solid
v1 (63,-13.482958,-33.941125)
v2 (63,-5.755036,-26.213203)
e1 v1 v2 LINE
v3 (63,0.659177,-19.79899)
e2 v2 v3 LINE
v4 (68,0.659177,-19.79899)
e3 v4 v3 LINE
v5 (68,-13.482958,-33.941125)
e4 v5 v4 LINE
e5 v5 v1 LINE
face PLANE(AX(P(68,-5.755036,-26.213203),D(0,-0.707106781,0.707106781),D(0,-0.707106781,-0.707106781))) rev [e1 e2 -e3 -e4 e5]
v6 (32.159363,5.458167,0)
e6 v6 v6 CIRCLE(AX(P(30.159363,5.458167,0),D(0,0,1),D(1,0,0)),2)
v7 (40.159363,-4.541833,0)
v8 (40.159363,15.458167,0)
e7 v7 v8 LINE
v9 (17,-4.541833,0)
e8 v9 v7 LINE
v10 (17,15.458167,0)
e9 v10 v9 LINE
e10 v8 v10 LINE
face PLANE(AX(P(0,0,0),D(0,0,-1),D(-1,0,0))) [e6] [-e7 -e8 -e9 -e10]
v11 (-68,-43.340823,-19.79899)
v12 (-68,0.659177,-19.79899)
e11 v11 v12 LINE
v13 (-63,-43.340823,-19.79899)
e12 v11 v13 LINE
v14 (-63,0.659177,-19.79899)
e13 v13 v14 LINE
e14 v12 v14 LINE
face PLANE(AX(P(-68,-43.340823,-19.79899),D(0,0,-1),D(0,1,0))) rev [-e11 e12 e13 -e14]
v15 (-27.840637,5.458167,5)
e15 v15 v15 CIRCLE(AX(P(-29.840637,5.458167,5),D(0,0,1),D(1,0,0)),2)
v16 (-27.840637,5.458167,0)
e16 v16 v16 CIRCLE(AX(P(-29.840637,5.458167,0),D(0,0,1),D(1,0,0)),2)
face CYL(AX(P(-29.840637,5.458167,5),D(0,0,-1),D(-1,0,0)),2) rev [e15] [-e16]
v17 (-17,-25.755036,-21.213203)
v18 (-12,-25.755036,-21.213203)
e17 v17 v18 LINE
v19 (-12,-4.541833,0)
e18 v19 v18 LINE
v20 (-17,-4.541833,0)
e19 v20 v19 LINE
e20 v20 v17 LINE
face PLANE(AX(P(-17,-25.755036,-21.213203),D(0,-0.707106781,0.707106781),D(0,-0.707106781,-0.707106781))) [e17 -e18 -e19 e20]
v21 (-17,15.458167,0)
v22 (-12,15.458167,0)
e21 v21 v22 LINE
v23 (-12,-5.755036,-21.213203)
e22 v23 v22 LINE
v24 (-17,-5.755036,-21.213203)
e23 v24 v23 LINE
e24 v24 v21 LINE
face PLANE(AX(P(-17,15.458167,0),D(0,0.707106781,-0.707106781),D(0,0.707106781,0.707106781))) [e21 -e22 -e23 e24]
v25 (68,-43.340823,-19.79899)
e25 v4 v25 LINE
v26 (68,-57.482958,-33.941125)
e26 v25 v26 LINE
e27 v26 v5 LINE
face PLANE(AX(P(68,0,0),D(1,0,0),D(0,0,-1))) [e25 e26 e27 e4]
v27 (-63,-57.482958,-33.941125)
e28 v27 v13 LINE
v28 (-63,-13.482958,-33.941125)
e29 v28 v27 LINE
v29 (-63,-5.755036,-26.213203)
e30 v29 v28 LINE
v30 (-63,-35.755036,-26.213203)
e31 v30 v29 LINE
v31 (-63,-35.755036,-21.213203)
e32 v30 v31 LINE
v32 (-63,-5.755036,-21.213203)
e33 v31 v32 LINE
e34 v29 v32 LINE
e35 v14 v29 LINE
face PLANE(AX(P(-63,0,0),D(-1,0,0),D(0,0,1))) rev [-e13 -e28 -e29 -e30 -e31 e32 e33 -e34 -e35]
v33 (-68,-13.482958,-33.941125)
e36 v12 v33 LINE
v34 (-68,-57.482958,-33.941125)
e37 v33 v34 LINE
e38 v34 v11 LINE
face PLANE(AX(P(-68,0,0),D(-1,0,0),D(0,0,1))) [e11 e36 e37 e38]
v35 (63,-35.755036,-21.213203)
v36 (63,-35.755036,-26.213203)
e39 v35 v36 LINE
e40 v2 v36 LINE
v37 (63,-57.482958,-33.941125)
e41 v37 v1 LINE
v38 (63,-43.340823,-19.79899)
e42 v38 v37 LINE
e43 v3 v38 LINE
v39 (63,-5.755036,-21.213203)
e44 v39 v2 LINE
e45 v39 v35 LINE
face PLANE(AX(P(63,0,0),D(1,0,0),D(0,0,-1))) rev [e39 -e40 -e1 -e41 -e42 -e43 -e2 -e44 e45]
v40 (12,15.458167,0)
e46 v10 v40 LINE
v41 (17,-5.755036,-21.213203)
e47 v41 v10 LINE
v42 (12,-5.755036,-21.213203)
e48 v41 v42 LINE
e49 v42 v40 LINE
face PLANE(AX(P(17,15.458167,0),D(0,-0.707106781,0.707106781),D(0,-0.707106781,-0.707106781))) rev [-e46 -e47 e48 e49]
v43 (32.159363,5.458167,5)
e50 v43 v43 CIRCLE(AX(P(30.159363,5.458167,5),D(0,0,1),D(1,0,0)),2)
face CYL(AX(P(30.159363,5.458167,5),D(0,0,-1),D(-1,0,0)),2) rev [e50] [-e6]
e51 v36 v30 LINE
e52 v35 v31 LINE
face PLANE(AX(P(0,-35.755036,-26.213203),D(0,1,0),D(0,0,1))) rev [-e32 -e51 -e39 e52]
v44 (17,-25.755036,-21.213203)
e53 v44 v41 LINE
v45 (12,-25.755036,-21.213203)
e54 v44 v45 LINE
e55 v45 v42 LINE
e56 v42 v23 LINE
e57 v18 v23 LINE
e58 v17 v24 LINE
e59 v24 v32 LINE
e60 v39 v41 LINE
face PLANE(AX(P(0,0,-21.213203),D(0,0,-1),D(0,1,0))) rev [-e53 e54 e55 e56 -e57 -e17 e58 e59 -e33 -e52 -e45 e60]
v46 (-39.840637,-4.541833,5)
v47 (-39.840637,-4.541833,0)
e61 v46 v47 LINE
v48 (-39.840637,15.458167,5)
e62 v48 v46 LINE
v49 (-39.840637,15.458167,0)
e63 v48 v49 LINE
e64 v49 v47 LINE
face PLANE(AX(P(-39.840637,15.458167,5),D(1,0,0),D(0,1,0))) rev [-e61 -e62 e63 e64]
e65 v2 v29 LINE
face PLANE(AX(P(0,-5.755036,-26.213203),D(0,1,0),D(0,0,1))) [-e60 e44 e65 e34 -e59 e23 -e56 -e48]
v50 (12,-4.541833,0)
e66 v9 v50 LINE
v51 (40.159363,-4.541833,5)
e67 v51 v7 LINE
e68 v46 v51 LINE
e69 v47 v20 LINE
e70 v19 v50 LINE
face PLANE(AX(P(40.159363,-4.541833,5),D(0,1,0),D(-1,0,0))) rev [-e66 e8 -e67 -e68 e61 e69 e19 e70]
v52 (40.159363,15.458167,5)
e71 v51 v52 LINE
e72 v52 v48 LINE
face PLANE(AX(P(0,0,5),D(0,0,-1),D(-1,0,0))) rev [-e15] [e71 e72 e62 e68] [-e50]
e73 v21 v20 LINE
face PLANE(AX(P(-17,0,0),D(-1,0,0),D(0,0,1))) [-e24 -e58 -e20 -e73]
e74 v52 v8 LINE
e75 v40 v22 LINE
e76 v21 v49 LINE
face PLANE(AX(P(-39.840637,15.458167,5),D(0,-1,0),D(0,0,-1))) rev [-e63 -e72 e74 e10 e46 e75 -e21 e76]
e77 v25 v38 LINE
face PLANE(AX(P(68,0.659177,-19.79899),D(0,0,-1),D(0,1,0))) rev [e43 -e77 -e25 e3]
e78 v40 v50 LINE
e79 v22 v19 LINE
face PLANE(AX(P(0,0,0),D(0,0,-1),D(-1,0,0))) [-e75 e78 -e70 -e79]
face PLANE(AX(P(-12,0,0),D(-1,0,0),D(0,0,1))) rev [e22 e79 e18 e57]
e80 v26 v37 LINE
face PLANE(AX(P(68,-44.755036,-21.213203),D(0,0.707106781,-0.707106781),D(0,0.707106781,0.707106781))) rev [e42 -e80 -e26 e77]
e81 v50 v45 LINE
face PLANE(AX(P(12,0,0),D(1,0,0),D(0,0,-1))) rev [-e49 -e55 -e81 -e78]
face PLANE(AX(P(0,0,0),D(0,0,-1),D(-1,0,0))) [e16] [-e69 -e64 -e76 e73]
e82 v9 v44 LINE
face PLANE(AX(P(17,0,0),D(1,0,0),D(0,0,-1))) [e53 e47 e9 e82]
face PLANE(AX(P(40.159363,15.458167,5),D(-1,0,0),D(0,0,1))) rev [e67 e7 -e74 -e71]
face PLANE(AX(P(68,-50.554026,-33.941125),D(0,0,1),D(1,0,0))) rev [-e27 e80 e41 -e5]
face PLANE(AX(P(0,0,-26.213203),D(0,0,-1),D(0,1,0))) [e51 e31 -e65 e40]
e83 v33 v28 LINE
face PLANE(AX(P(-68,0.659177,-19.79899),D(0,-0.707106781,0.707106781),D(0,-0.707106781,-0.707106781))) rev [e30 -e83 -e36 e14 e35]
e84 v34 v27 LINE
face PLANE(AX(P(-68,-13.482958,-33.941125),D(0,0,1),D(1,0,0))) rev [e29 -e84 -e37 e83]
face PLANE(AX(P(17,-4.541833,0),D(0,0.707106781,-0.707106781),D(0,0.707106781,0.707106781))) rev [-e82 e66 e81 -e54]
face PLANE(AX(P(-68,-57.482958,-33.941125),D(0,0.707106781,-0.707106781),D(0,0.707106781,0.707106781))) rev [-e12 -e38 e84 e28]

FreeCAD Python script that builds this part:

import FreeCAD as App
import Part
import Sketcher
Q = App.Units.Quantity

doc = App.newDocument("Part")
body = doc.addObject("PartDesign::Body", "Body")

sketch1 = body.newObject("Sketcher::SketchObject", "Sketch")
sketch1.AttachmentSupport = (doc.getObject("XY_Plane"), [""])
sketch1.MapMode = "FlatFace"
sketch1.addGeometry([
    Part.LineSegment(App.Vector(-39.8, 15.5, 0), App.Vector(-39.8, -4.5, 0)),
    Part.LineSegment(App.Vector(-39.8, -4.5, 0), App.Vector(40.2, -4.5, 0)),
    Part.LineSegment(App.Vector(40.2, -4.5, 0), App.Vector(40.2, 15.5, 0)),
    Part.LineSegment(App.Vector(40.2, 15.5, 0), App.Vector(-39.8, 15.5, 0)),
    Part.Circle(App.Vector(-29.8, 5.5, 0), App.Vector(0, 0, 1), 2),
    Part.Circle(App.Vector(30.2, 5.5, 0), App.Vector(0, 0, 1), 2),
], False)
sketch1.addConstraint([
    Sketcher.Constraint("Coincident", 0, 2, 1, 1),
    Sketcher.Constraint("Coincident", 1, 2, 2, 1),
    Sketcher.Constraint("Coincident", 2, 2, 3, 1),
    Sketcher.Constraint("Coincident", 3, 2, 0, 1),
    Sketcher.Constraint("Vertical", 0),
    Sketcher.Constraint("Horizontal", 1),
    Sketcher.Constraint("Vertical", 2),
    Sketcher.Constraint("Horizontal", 3),
    Sketcher.Constraint("Equal", 4, 5),
    Sketcher.Constraint("Horizontal", 4, 3, 5, 3),
    Sketcher.Constraint("Diameter", 4, Q("4 mm")),
    Sketcher.Constraint("DistanceX", 1, 1, 1, 2, Q("80 mm")),
    Sketcher.Constraint("DistanceY", 0, 2, 0, 1, Q("20 mm")),
    Sketcher.Constraint("DistanceX", 4, 3, 5, 3, Q("60 mm")),
    Sketcher.Constraint("DistanceX", 0, 2, 4, 3, Q("10 mm")),
    Sketcher.Constraint("DistanceY", 0, 2, 4, 3, Q("10 mm")),
    Sketcher.Constraint("DistanceX", 4, 3, -1, 1, Q("29.840637 mm")),
    Sketcher.Constraint("DistanceY", -1, 1, 4, 3, Q("5.458167 mm")),
])
pad1 = body.newObject("PartDesign::Pad", "Pad")
pad1.Profile = sketch1
pad1.Length = 5

sketch2 = body.newObject("Sketcher::SketchObject", "Sketch001")
sketch2.AttachmentSupport = (doc.getObject("YZ_Plane"), [""])
sketch2.MapMode = "FlatFace"
sketch2.AttachmentOffset = App.Placement(App.Vector(0, 0, 12), App.Rotation())
sketch2.addGeometry([
    Part.LineSegment(App.Vector(-6, -21, 0), App.Vector(15, 0, 0)),
    Part.LineSegment(App.Vector(15, 0, 0), App.Vector(-5, 0, 0)),
    Part.LineSegment(App.Vector(-5, 0, 0), App.Vector(-26, -21, 0)),
    Part.LineSegment(App.Vector(-26, -21, 0), App.Vector(-6, -21, 0)),
], False)
sketch2.addConstraint([
    Sketcher.Constraint("Coincident", 0, 2, 1, 1),
    Sketcher.Constraint("Coincident", 1, 2, 2, 1),
    Sketcher.Constraint("Coincident", 2, 2, 3, 1),
    Sketcher.Constraint("Coincident", 3, 2, 0, 1),
    Sketcher.Constraint("Horizontal", 1),
    Sketcher.Constraint("Horizontal", 3),
    Sketcher.Constraint("PointOnObject", 0, 2, -1),
    Sketcher.Constraint("Parallel", 0, 2),
    Sketcher.Constraint("DistanceX", 1, 2, 1, 1, Q("20 mm")),
    Sketcher.Constraint("Angle", 0, Q("45 deg")),
    Sketcher.Constraint("Distance", 0, Q("30 mm")),
    Sketcher.Constraint("DistanceX", -1, 1, 0, 2, Q("15.458167 mm")),
])
pad2 = body.newObject("PartDesign::Pad", "Pad001")
pad2.Profile = sketch2
pad2.Length = 5

sketch3 = body.newObject("Sketcher::SketchObject", "Sketch002")
sketch3.AttachmentSupport = (doc.getObject("YZ_Plane"), [""])
sketch3.MapMode = "FlatFace"
sketch3.AttachmentOffset = App.Placement(App.Vector(0, 0, -12), App.Rotation())
sketch3.addGeometry([
    Part.LineSegment(App.Vector(-6, -21, 0), App.Vector(15, 0, 0)),
    Part.LineSegment(App.Vector(15, 0, 0), App.Vector(-5, 0, 0)),
    Part.LineSegment(App.Vector(-5, 0, 0), App.Vector(-26, -21, 0)),
    Part.LineSegment(App.Vector(-26, -21, 0), App.Vector(-6, -21, 0)),
], False)
sketch3.addConstraint([
    Sketcher.Constraint("Coincident", 0, 2, 1, 1),
    Sketcher.Constraint("Coincident", 1, 2, 2, 1),
    Sketcher.Constraint("Coincident", 2, 2, 3, 1),
    Sketcher.Constraint("Coincident", 3, 2, 0, 1),
    Sketcher.Constraint("Horizontal", 1),
    Sketcher.Constraint("Horizontal", 3),
    Sketcher.Constraint("PointOnObject", 0, 2, -1),
    Sketcher.Constraint("Parallel", 0, 2),
    Sketcher.Constraint("DistanceX", 1, 2, 1, 1, Q("20 mm")),
    Sketcher.Constraint("Angle", 0, Q("45 deg")),
    Sketcher.Constraint("Distance", 0, Q("30 mm")),
    Sketcher.Constraint("DistanceX", -1, 1, 0, 2, Q("15.458167 mm")),
])
pad3 = body.newObject("PartDesign::Pad", "Pad002")
pad3.Profile = sketch3
pad3.Length = 5
pad3.Reversed = True

sketch4 = body.newObject("Sketcher::SketchObject", "Sketch003")
sketch4.AttachmentSupport = (doc.getObject("XY_Plane"), [""])
sketch4.MapMode = "FlatFace"
sketch4.AttachmentOffset = App.Placement(App.Vector(0, 0, -21.213203), App.Rotation())
sketch4.addGeometry([
    Part.LineSegment(App.Vector(-65, -6, 0), App.Vector(65, -6, 0)),
    Part.LineSegment(App.Vector(65, -6, 0), App.Vector(65, -36, 0)),
    Part.LineSegment(App.Vector(65, -36, 0), App.Vector(-65, -36, 0)),
    Part.LineSegment(App.Vector(-65, -36, 0), App.Vector(-65, -6, 0)),
], False)
sketch4.addConstraint([
    Sketcher.Constraint("Coincident", 0, 2, 1, 1),
    Sketcher.Constraint("Coincident", 1, 2, 2, 1),
    Sketcher.Constraint("Coincident", 2, 2, 3, 1),
    Sketcher.Constraint("Coincident", 3, 2, 0, 1),
    Sketcher.Constraint("Horizontal", 0),
    Sketcher.Constraint("Vertical", 1),
    Sketcher.Constraint("Horizontal", 2),
    Sketcher.Constraint("Vertical", 3),
    Sketcher.Constraint("DistanceX", 0, 1, 0, 2, Q("130 mm")),
    Sketcher.Constraint("DistanceY", 1, 2, 1, 1, Q("30 mm")),
    Sketcher.Constraint("DistanceX", -1, 1, 0, 2, Q("65 mm")),
    Sketcher.Constraint("DistanceY", 0, 2, -1, 1, Q("5.755036 mm")),
])
pad4 = body.newObject("PartDesign::Pad", "Pad003")
pad4.Profile = sketch4
pad4.Length = 5
pad4.Reversed = True

sketch5 = body.newObject("Sketcher::SketchObject", "Sketch004")
sketch5.AttachmentSupport = (doc.getObject("YZ_Plane"), [""])
sketch5.MapMode = "FlatFace"
sketch5.AttachmentOffset = App.Placement(App.Vector(0, 0, 63), App.Rotation())
sketch5.addGeometry([
    Part.LineSegment(App.Vector(-13.5, -33.9, 0), App.Vector(-0.8, -21.2, 0)),
    Part.LineSegment(App.Vector(-0.8, -21.2, 0), App.Vector(0.7, -19.8, 0)),
    Part.LineSegment(App.Vector(0.7, -19.8, 0), App.Vector(-43.3, -19.8, 0)),
    Part.LineSegment(App.Vector(-43.3, -19.8, 0), App.Vector(-44.8, -21.2, 0)),
    Part.LineSegment(App.Vector(-44.8, -21.2, 0), App.Vector(-57.5, -33.9, 0)),
    Part.LineSegment(App.Vector(-57.5, -33.9, 0), App.Vector(-13.5, -33.9, 0)),
], False)
sketch5.addConstraint([
    Sketcher.Constraint("Coincident", 0, 2, 1, 1),
    Sketcher.Constraint("Coincident", 1, 2, 2, 1),
    Sketcher.Constraint("Coincident", 2, 2, 3, 1),
    Sketcher.Constraint("Coincident", 3, 2, 4, 1),
    Sketcher.Constraint("Coincident", 4, 2, 5, 1),
    Sketcher.Constraint("Coincident", 5, 2, 0, 1),
    Sketcher.Constraint("Horizontal", 2),
    Sketcher.Constraint("Horizontal", 5),
    Sketcher.Constraint("Parallel", 0, 1),
    Sketcher.Constraint("Parallel", 1, 3),
    Sketcher.Constraint("Parallel", 3, 4),
    Sketcher.Constraint("Horizontal", 0, 2, 3, 2),
    Sketcher.Constraint("DistanceX", 2, 2, 2, 1, Q("44 mm")),
    Sketcher.Constraint("Angle", 0, Q("45 deg")),
    Sketcher.Constraint("Distance", 0, Q("18 mm")),
    Sketcher.Constraint("Distance", 1, Q("2 mm")),
    Sketcher.Constraint("DistanceY", 1, 2, -1, 1, Q("19.79899 mm")),
    Sketcher.Constraint("DistanceX", 4, 2, -1, 1, Q("57.482958 mm")),
])
pad5 = body.newObject("PartDesign::Pad", "Pad004")
pad5.Profile = sketch5
pad5.Length = 5

sketch6 = body.newObject("Sketcher::SketchObject", "Sketch005")
sketch6.AttachmentSupport = (doc.getObject("YZ_Plane"), [""])
sketch6.MapMode = "FlatFace"
sketch6.AttachmentOffset = App.Placement(App.Vector(0, 0, -63), App.Rotation())
sketch6.addGeometry([
    Part.LineSegment(App.Vector(1, -20, 0), App.Vector(-13, -34, 0)),
    Part.LineSegment(App.Vector(-13, -34, 0), App.Vector(-57, -34, 0)),
    Part.LineSegment(App.Vector(-57, -34, 0), App.Vector(-43, -20, 0)),
    Part.LineSegment(App.Vector(-43, -20, 0), App.Vector(1, -20, 0)),
], False)
sketch6.addConstraint([
    Sketcher.Constraint("Coincident", 0, 2, 1, 1),
    Sketcher.Constraint("Coincident", 1, 2, 2, 1),
    Sketcher.Constraint("Coincident", 2, 2, 3, 1),
    Sketcher.Constraint("Coincident", 3, 2, 0, 1),
    Sketcher.Constraint("Horizontal", 1),
    Sketcher.Constraint("Horizontal", 3),
    Sketcher.Constraint("Parallel", 0, 2),
    Sketcher.Constraint("DistanceX", 1, 2, 1, 1, Q("44 mm")),
    Sketcher.Constraint("Angle", 0, Q("-135 deg")),
    Sketcher.Constraint("Distance", 0, Q("20 mm")),
    Sketcher.Constraint("DistanceX", 0, 2, -1, 1, Q("13.482958 mm")),
    Sketcher.Constraint("DistanceY", 2, 2, -1, 1, Q("19.79899 mm")),
])
pad6 = body.newObject("PartDesign::Pad", "Pad005")
pad6.Profile = sketch6
pad6.Length = 5
pad6.Reversed = True

doc.recompute()
